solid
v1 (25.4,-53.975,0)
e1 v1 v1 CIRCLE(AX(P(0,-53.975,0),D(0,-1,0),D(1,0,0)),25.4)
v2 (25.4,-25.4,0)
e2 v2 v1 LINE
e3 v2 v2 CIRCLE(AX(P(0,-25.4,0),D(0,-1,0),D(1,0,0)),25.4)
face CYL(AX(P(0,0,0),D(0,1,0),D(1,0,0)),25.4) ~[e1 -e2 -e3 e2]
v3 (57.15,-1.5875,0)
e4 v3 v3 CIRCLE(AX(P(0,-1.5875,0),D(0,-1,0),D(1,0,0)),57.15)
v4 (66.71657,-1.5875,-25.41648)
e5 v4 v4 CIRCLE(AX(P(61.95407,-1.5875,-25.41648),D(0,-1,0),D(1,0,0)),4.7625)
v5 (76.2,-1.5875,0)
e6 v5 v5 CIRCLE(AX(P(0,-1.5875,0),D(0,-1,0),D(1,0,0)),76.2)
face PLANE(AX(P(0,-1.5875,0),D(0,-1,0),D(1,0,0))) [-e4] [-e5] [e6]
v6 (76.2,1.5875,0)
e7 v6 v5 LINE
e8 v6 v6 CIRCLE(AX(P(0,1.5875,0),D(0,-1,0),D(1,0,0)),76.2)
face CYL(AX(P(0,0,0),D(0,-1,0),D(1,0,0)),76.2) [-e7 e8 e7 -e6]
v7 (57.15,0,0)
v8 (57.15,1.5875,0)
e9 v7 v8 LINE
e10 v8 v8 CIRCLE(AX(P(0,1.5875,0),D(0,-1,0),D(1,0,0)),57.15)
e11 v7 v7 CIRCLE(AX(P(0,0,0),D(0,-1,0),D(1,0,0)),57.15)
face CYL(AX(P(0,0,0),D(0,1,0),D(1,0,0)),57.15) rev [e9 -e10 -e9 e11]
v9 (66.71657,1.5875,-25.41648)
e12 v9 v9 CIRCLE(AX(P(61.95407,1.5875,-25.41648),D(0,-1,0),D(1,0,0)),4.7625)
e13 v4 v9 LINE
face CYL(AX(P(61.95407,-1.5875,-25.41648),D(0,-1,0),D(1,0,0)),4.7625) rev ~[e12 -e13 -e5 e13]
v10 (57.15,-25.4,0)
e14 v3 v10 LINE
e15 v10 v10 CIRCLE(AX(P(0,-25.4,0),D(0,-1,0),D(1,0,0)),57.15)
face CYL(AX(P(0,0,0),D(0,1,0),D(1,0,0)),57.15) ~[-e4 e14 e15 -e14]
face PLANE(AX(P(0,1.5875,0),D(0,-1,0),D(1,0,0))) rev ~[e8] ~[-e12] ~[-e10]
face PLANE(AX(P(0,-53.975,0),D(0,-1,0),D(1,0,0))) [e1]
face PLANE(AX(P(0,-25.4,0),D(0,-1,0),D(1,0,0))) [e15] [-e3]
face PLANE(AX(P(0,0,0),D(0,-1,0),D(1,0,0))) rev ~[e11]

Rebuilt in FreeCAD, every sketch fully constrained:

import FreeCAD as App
import Part
import Sketcher

V = App.Vector
Q = App.Units.Quantity

doc = App.newDocument("Part")
body = doc.addObject("PartDesign::Body", "Body")

sketch1 = body.newObject("Sketcher::SketchObject", "Sketch")
sketch1.AttachmentSupport = (doc.getObject("XZ_Plane"), [""])
sketch1.MapMode = "FlatFace"
sketch1.addGeometry([
    Part.Circle(V(0, 0, 0), V(0, 0, 1), 57),
    Part.Circle(V(0, 0, 0), V(0, 0, 1), 25),
], False)
sketch1.addConstraint([
    Sketcher.Constraint("Coincident", 0, 3, -1, 1),
    Sketcher.Constraint("Coincident", 1, 3, -1, 1),
    Sketcher.Constraint("Diameter", 1, Q("2 in")),
    Sketcher.Constraint("Diameter", 0, Q("4.5 in")),
])
pad1 = body.newObject("PartDesign::Pad", "Pad")
pad1.Profile = sketch1
pad1.Length = Q("1 in")

sketch2 = body.newObject("Sketcher::SketchObject", "Sketch001")
sketch2.AttachmentSupport = (doc.getObject("XZ_Plane"), [""])
sketch2.MapMode = "FlatFace"
sketch2.addGeometry([
    Part.Circle(V(0, 0, 0), V(0, 0, 1), 76),
    Part.Circle(V(0, 0, 0), V(0, 0, 1), 57),
], False)
sketch2.addConstraint([
    Sketcher.Constraint("Coincident", 0, 3, -1, 1),
    Sketcher.Constraint("Coincident", 1, 3, -1, 1),
    Sketcher.Constraint("Diameter", 0, Q("6 in")),
    Sketcher.Constraint("Diameter", 1, Q("4.5 in")),
])
pad2 = body.newObject("PartDesign::Pad", "Pad001")
pad2.Profile = sketch2
pad2.Length = Q("0.125 in")
pad2.Midplane = True

sketch3 = body.newObject("Sketcher::SketchObject", "Sketch002")
sketch3.AttachmentSupport = (doc.getObject("XZ_Plane"), [""])
sketch3.MapMode = "FlatFace"
sketch3.addGeometry(Part.Circle(V(0, 0, 0), V(0, 0, 1), 25), False)
sketch3.addConstraint([
    Sketcher.Constraint("Coincident", 0, 3, -1, 1),
    Sketcher.Constraint("Diameter", 0, Q("2 in")),
])
pad3 = body.newObject("PartDesign::Pad", "Pad002")
pad3.Profile = sketch3
pad3.Length = Q("2.125 in")

sketch4 = body.newObject("Sketcher::SketchObject", "Sketch003")
sketch4.AttachmentSupport = (doc.getObject("XZ_Plane"), [""])
sketch4.MapMode = "FlatFace"
sketch4.AttachmentOffset = App.Placement(V(0, 0, 0.0625 * 25.4), App.Rotation())
sketch4.addGeometry(Part.Circle(V(62, -25.4, 0), V(0, 0, 1), 4.8), False)
sketch4.addConstraint([
    Sketcher.Constraint("Diameter", 0, Q("0.375 in")),
    Sketcher.Constraint("DistanceX", -1, 1, 0, 3, Q("61.95407 mm")),
    Sketcher.Constraint("DistanceY", 0, 3, -1, 1, Q("25.41648 mm")),
])
pocket1 = body.newObject("PartDesign::Pocket", "Pocket")
pocket1.Profile = sketch4
pocket1.Type = "ThroughAll"

doc.recompute()
